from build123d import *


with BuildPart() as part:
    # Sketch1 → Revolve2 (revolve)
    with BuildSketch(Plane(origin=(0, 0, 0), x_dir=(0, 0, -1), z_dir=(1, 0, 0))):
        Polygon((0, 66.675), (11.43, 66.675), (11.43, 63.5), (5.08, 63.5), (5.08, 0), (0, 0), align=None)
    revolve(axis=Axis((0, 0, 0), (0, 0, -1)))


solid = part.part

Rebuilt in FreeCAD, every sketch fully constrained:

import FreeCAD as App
import Part
import Sketcher

V = App.Vector
Q = App.Units.Quantity

doc = App.newDocument("Part")
params = doc.addObject("Spreadsheet::Sheet", "Params")
for row, (alias, value) in enumerate([
    ("sketch1_width", "2.5 in"),
    ("sketch1_height", "0.2 in"),
    ("sketch1_height2", "0.45 in"),
    ("sketch1_width2", "2.625 in"),
    ("revolution_angle", "360 deg"),
], start=1):
    params.set(f"A{row}", alias)
    params.set(f"B{row}", "=" + value)
    params.setAlias(f"B{row}", alias)

body = doc.addObject("PartDesign::Body", "Body")

# Sketch on YZ plane
sketch1 = body.newObject("Sketcher::SketchObject", "Sketch")
sketch1.AttachmentSupport = (doc.getObject("YZ_Plane"), [""])
sketch1.MapMode = "FlatFace"
sketch1.addGeometry(Part.LineSegment(V(66.7, -11.4, 0), V(66.7, 0, 0)), False)
sketch1.addGeometry(Part.LineSegment(V(66.7, 0, 0), V(0, 0, 0)), False)
sketch1.addGeometry(Part.LineSegment(V(0, 0, 0), V(0, -5.1, 0)), False)
sketch1.addGeometry(Part.LineSegment(V(0, -5.1, 0), V(63.5, -5.1, 0)), False)
sketch1.addGeometry(Part.LineSegment(V(63.5, -5.1, 0), V(63.5, -11.4, 0)), False)
sketch1.addGeometry(Part.LineSegment(V(63.5, -11.4, 0), V(66.7, -11.4, 0)), False)
sketch1.addConstraint(Sketcher.Constraint("Coincident", 0, 2, 1, 1))
sketch1.addConstraint(Sketcher.Constraint("Coincident", 1, 2, 2, 1))
sketch1.addConstraint(Sketcher.Constraint("Coincident", 2, 2, 3, 1))
sketch1.addConstraint(Sketcher.Constraint("Coincident", 3, 2, 4, 1))
sketch1.addConstraint(Sketcher.Constraint("Coincident", 4, 2, 5, 1))
sketch1.addConstraint(Sketcher.Constraint("Coincident", 5, 2, 0, 1))
sketch1.addConstraint(Sketcher.Constraint("Vertical", 0))
sketch1.addConstraint(Sketcher.Constraint("Horizontal", 1))
sketch1.addConstraint(Sketcher.Constraint("Vertical", 2))
sketch1.addConstraint(Sketcher.Constraint("Horizontal", 3))
sketch1.addConstraint(Sketcher.Constraint("Vertical", 4))
sketch1.addConstraint(Sketcher.Constraint("Horizontal", 5))
sketch1.addConstraint(Sketcher.Constraint("Coincident", 1, 2, -1, 1))
sketch1.addConstraint(Sketcher.Constraint("DistanceX", 3, 1, 3, 2, Q("2.5 in")))
sketch1.addConstraint(Sketcher.Constraint("DistanceY", 2, 2, 2, 1, Q("0.2 in")))
sketch1.addConstraint(Sketcher.Constraint("DistanceY", 0, 1, 0, 2, Q("0.45 in")))
sketch1.addConstraint(Sketcher.Constraint("DistanceX", 1, 2, 1, 1, Q("2.625 in")))
sketch1.setExpression("Constraints[13]", "Params.sketch1_width")
sketch1.setExpression("Constraints[14]", "Params.sketch1_height")
sketch1.setExpression("Constraints[15]", "Params.sketch1_height2")
sketch1.setExpression("Constraints[16]", "Params.sketch1_width2")
revolution = body.newObject("PartDesign::Revolution", "Revolution")
revolution.Profile = sketch1
revolution.ReferenceAxis = (sketch1, ["V_Axis"])
revolution.setExpression("Angle", "Params.revolution_angle")

doc.recompute()
